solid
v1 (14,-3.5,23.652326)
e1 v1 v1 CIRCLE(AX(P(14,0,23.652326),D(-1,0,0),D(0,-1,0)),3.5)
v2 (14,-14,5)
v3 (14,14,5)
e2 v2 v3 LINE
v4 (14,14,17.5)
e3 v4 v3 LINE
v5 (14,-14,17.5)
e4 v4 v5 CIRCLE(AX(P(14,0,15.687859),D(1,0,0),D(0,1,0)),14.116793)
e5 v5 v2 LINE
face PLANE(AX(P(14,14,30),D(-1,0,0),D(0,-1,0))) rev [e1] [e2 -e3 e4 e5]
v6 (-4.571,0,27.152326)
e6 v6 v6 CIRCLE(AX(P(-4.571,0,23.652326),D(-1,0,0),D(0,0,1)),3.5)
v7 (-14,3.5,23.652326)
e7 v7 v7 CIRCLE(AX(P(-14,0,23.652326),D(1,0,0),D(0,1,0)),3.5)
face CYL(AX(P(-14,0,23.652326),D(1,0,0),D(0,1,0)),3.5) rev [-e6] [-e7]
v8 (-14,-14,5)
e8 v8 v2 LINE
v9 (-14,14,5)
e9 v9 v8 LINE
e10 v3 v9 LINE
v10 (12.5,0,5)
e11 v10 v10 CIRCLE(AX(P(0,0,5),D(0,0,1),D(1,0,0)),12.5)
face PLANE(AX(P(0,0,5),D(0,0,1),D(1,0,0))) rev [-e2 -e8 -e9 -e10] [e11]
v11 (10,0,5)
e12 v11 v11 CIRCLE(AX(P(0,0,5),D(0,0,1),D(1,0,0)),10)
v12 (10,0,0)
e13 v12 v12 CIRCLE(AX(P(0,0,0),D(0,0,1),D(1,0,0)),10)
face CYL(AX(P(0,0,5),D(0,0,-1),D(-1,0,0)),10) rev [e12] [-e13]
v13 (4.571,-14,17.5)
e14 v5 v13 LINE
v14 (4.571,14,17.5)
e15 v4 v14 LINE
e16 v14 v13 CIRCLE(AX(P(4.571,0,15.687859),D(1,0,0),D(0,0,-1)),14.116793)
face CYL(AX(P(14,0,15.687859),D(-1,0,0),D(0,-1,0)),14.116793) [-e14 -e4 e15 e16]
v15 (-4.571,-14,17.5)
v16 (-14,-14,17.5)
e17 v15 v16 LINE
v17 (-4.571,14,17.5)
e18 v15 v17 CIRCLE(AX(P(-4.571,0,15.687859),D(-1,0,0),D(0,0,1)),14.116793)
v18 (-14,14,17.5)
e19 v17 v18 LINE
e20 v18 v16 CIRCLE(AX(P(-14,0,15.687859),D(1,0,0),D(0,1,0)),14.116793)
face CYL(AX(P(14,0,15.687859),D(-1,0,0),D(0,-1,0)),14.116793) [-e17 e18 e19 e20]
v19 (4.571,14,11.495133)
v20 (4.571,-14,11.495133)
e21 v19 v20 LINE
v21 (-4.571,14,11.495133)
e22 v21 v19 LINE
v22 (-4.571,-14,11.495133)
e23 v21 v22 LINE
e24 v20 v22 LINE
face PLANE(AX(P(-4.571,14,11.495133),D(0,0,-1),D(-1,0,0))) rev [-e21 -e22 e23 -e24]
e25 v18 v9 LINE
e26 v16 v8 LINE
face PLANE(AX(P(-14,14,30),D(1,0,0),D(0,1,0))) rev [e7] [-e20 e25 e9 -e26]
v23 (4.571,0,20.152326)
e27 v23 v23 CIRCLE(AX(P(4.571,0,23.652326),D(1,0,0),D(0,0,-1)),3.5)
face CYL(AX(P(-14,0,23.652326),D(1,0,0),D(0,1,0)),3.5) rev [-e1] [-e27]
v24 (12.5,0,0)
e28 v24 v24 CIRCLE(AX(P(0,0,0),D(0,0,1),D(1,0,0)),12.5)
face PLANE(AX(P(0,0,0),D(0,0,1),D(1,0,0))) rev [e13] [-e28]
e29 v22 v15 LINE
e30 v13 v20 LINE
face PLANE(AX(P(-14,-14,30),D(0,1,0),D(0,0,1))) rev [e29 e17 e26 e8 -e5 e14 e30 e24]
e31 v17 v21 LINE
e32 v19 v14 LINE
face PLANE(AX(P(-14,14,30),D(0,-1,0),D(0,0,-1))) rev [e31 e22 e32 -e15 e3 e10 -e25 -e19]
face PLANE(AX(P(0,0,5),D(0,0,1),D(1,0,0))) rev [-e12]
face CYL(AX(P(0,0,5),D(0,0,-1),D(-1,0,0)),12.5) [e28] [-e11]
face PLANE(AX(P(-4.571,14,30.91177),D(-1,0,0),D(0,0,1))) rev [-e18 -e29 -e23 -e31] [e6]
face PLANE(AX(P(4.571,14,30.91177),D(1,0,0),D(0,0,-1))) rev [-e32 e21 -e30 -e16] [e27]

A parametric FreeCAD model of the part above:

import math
import FreeCAD as App
import Part
import Sketcher

V = App.Vector
Q = App.Units.Quantity

doc = App.newDocument("Part")
body = doc.addObject("PartDesign::Body", "Body")

# Sketch on XY plane
sketch1 = body.newObject("Sketcher::SketchObject", "Sketch")
sketch1.AttachmentSupport = (doc.getObject("XY_Plane"), [""])
sketch1.MapMode = "FlatFace"
sketch1.addGeometry([
    Part.Circle(V(0, 0, 0), V(0, 0, 1), 12),
    Part.Circle(V(0, 0, 0), V(0, 0, 1), 10),
], False)
sketch1.addConstraint([
    Sketcher.Constraint("Coincident", 0, 3, -1, 1),
    Sketcher.Constraint("Coincident", 1, 3, -1, 1),
    Sketcher.Constraint("Diameter", 0, Q("25 mm")),
    Sketcher.Constraint("Diameter", 1, Q("20 mm")),
])
pad1 = body.newObject("PartDesign::Pad", "Pad")
pad1.Profile = sketch1
pad1.Length = 5

# Sketch on XY plane
sketch2 = body.newObject("Sketcher::SketchObject", "Sketch001")
sketch2.AttachmentSupport = (doc.getObject("XY_Plane"), [""])
sketch2.MapMode = "FlatFace"
sketch2.AttachmentOffset = App.Placement(V(0, 0, 5), App.Rotation())
sketch2.addGeometry([
    Part.LineSegment(V(-14, 14, 0), V(-14, -14, 0)),
    Part.LineSegment(V(-14, -14, 0), V(14, -14, 0)),
    Part.LineSegment(V(14, -14, 0), V(14, 14, 0)),
    Part.LineSegment(V(14, 14, 0), V(-14, 14, 0)),
], False)
sketch2.addConstraint([
    Sketcher.Constraint("Coincident", 0, 2, 1, 1),
    Sketcher.Constraint("Coincident", 1, 2, 2, 1),
    Sketcher.Constraint("Coincident", 2, 2, 3, 1),
    Sketcher.Constraint("Coincident", 3, 2, 0, 1),
    Sketcher.Constraint("Vertical", 0),
    Sketcher.Constraint("Horizontal", 1),
    Sketcher.Constraint("Vertical", 2),
    Sketcher.Constraint("Horizontal", 3),
    Sketcher.Constraint("Symmetric", 0, 2, 2, 2, -1, 1),
    Sketcher.Constraint("Equal", 3, 0),
    Sketcher.Constraint("DistanceX", 1, 1, 1, 2, Q("28 mm")),
])
pad2 = body.newObject("PartDesign::Pad", "Pad001")
pad2.Profile = sketch2
pad2.Length = 25

# Sketch on YZ plane
sketch3 = body.newObject("Sketcher::SketchObject", "Sketch002")
sketch3.AttachmentSupport = (doc.getObject("YZ_Plane"), [""])
sketch3.MapMode = "FlatFace"
sketch3.AttachmentOffset = App.Placement(V(0, 0, -14), App.Rotation())
sketch3.addGeometry([
    Part.LineSegment(V(14, 30, 0), V(14, 18, 0)),
    Part.ArcOfCircle(Part.Circle(V(0, 16, 0), V(0, 0, 1), 14), math.radians(7), math.radians(173)),
    Part.LineSegment(V(-14, 18, 0), V(-14, 30, 0)),
    Part.LineSegment(V(-14, 30, 0), V(14, 30, 0)),
], False)
sketch3.addConstraint([
    Sketcher.Constraint("Coincident", 0, 2, 1, 1),
    Sketcher.Constraint("Coincident", 1, 2, 2, 1),
    Sketcher.Constraint("Coincident", 2, 2, 3, 1),
    Sketcher.Constraint("Coincident", 3, 2, 0, 1),
    Sketcher.Constraint("Vertical", 0),
    Sketcher.Constraint("Vertical", 2),
    Sketcher.Constraint("Horizontal", 3),
    Sketcher.Constraint("Symmetric", 0, 2, 1, 2, -2),
    Sketcher.Constraint("DistanceX", 3, 1, 3, 2, Q("28 mm")),
    Sketcher.Constraint("DistanceY", 0, 2, 0, 1, Q("12.5 mm")),
    Sketcher.Constraint("DistanceY", -1, 1, 2, 2, Q("30 mm")),
    Sketcher.Constraint("Radius", 1, Q("14.116793 mm")),
])
pocket1 = body.newObject("PartDesign::Pocket", "Pocket")
pocket1.Profile = sketch3
pocket1.Type = "ThroughAll"
pocket1.Reversed = True

# Sketch on XZ plane
sketch4 = body.newObject("Sketcher::SketchObject", "Sketch003")
sketch4.AttachmentSupport = (doc.getObject("XZ_Plane"), [""])
sketch4.MapMode = "FlatFace"
sketch4.AttachmentOffset = App.Placement(V(0, 0, 14), App.Rotation())
sketch4.addGeometry([
    Part.LineSegment(V(-5, 31, 0), V(-5, 11, 0)),
    Part.LineSegment(V(-5, 11, 0), V(5, 11, 0)),
    Part.LineSegment(V(5, 11, 0), V(5, 31, 0)),
    Part.LineSegment(V(5, 31, 0), V(-5, 31, 0)),
], False)
sketch4.addConstraint([
    Sketcher.Constraint("Coincident", 0, 2, 1, 1),
    Sketcher.Constraint("Coincident", 1, 2, 2, 1),
    Sketcher.Constraint("Coincident", 2, 2, 3, 1),
    Sketcher.Constraint("Coincident", 3, 2, 0, 1),
    Sketcher.Constraint("Vertical", 0),
    Sketcher.Constraint("Horizontal", 1),
    Sketcher.Constraint("Vertical", 2),
    Sketcher.Constraint("Horizontal", 3),
    Sketcher.Constraint("DistanceX", 1, 1, 1, 2, Q("9.142 mm")),
    Sketcher.Constraint("DistanceX", 0, 2, -1, 1, Q("4.571 mm")),
    Sketcher.Constraint("DistanceY", 0, 2, 0, 1, Q("19.416637 mm")),
    Sketcher.Constraint("DistanceY", -1, 1, 2, 2, Q("30.91177 mm")),
])
pocket2 = body.newObject("PartDesign::Pocket", "Pocket001")
pocket2.Profile = sketch4
pocket2.Type = "ThroughAll"
pocket2.Midplane = True

# Sketch on YZ plane
sketch5 = body.newObject("Sketcher::SketchObject", "Sketch004")
sketch5.AttachmentSupport = (doc.getObject("YZ_Plane"), [""])
sketch5.MapMode = "FlatFace"
sketch5.AttachmentOffset = App.Placement(V(0, 0, 14), App.Rotation())
sketch5.addGeometry(Part.Circle(V(0, 23.7, 0), V(0, 0, 1), 3.5), False)
sketch5.addConstraint([
    Sketcher.Constraint("PointOnObject", 0, 3, -2),
    Sketcher.Constraint("Diameter", 0, Q("7 mm")),
    Sketcher.Constraint("DistanceY", -1, 1, 0, 3, Q("23.652326 mm")),
])
pocket3 = body.newObject("PartDesign::Pocket", "Pocket002")
pocket3.Profile = sketch5
pocket3.Type = "ThroughAll"
pocket3.Midplane = True

doc.recompute()
